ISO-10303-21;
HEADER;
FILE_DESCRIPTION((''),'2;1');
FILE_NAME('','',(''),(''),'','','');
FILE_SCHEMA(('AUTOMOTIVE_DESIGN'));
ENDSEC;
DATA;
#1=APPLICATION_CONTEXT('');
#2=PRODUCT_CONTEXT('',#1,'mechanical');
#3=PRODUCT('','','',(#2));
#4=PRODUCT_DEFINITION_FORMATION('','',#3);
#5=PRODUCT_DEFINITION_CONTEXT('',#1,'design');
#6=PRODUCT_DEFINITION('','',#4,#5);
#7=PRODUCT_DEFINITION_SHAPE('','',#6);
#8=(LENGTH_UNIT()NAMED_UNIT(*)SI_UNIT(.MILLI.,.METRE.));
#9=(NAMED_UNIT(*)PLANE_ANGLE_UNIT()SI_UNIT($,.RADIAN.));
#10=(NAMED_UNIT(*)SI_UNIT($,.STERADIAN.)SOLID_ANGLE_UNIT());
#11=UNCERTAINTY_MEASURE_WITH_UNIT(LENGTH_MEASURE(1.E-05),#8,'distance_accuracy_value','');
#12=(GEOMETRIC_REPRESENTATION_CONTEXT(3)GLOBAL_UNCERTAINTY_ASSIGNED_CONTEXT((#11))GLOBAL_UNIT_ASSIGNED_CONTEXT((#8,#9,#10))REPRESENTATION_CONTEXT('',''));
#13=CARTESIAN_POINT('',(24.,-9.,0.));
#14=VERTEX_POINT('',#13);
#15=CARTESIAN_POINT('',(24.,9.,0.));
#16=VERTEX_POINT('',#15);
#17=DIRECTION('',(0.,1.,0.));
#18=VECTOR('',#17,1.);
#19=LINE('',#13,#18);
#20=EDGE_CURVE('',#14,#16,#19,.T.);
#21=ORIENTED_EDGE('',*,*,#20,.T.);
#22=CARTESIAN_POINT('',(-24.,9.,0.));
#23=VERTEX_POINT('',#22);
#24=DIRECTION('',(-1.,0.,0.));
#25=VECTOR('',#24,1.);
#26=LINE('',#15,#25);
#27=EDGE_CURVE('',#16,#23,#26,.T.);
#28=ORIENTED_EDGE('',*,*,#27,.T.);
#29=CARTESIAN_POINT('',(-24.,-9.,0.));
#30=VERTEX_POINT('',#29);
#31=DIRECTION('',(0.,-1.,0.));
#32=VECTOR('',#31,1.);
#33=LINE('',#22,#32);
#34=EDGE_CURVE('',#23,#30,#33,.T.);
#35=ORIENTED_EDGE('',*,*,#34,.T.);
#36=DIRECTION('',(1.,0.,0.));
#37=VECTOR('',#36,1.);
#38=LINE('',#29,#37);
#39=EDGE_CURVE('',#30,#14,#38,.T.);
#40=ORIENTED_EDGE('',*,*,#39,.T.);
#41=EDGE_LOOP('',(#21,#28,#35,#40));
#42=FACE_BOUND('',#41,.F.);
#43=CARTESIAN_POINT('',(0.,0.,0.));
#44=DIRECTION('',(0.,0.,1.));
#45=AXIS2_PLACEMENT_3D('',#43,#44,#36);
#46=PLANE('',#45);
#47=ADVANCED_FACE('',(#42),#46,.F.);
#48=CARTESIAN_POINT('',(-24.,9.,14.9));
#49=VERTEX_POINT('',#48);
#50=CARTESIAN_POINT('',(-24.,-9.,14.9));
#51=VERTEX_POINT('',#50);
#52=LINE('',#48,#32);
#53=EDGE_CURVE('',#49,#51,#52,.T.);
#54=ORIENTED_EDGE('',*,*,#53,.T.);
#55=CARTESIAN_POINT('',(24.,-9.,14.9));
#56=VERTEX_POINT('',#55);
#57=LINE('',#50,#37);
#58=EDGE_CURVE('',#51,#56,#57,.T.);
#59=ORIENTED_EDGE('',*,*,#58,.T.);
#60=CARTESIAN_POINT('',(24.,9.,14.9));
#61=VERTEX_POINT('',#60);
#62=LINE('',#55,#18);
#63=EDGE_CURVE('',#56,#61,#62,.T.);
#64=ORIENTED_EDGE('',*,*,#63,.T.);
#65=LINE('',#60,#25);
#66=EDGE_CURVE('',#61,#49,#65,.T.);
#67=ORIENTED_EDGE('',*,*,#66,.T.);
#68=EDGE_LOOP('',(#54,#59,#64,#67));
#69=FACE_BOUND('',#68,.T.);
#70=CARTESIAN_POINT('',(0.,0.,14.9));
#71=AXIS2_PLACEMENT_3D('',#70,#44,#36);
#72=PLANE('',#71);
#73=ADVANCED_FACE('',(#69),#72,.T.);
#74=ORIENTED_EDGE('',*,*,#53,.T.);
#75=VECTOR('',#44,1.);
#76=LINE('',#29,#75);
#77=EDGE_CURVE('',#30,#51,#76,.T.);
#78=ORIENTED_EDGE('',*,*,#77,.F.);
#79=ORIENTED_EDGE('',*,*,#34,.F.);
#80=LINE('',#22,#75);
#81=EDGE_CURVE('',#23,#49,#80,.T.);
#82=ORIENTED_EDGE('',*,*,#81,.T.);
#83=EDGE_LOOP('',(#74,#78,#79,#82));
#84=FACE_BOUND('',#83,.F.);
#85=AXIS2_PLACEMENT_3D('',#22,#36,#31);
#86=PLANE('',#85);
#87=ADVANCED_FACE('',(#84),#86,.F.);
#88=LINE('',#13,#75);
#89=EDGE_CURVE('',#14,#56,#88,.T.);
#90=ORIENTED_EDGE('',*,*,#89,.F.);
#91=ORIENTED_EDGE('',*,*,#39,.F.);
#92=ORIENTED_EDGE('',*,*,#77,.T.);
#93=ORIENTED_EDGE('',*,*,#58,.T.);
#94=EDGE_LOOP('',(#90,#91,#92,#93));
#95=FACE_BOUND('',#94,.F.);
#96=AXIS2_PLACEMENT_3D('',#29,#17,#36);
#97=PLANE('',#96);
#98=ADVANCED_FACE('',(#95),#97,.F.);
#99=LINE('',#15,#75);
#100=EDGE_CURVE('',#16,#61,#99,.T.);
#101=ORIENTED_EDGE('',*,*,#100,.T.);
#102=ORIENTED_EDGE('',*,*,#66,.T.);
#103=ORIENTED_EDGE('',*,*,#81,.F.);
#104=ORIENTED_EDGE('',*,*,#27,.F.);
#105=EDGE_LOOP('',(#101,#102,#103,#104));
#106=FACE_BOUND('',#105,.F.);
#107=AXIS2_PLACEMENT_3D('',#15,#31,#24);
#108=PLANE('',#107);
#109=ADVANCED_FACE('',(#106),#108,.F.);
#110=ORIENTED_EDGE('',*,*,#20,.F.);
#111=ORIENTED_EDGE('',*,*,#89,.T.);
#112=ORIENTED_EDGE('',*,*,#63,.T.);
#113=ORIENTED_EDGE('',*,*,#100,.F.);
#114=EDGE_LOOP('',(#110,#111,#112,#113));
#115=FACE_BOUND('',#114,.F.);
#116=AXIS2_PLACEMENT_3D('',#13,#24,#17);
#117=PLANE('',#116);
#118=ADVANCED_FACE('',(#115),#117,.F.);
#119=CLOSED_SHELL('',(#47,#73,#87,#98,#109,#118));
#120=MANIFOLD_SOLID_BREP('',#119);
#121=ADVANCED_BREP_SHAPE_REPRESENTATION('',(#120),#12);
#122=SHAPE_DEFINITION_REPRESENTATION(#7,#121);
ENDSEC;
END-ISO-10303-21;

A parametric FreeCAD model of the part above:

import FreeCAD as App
import Part
import Sketcher

V = App.Vector


def add_polygon(sketch, points):
    """Adds a closed chain of lines whose ends are joined by coincident constraints."""
    first, n = sketch.GeometryCount, len(points)
    for a, b in zip(points, points[1:] + points[:1]):
        sketch.addGeometry(Part.LineSegment(App.Vector(*a, 0), App.Vector(*b, 0)), False)
    for i in range(n):
        sketch.addConstraint(Sketcher.Constraint("Coincident", first + i, 2, first + (i + 1) % n, 1))

doc = App.newDocument("Part")
body = doc.addObject("PartDesign::Body", "Body")

sketch1 = body.newObject("Sketcher::SketchObject", "Sketch")
sketch1.AttachmentSupport = (doc.getObject("XY_Plane"), [""])
sketch1.MapMode = "FlatFace"
add_polygon(sketch1, [(-24, 9), (-24, -9), (24, -9), (24, 9)])
sketch1.addConstraint(Sketcher.Constraint("Vertical", 0))
sketch1.addConstraint(Sketcher.Constraint("Horizontal", 1))
sketch1.addConstraint(Sketcher.Constraint("Vertical", 2))
sketch1.addConstraint(Sketcher.Constraint("Horizontal", 3))
sketch1.addConstraint(Sketcher.Constraint("Symmetric", 0, 2, 2, 2, -1, 1))
sketch1.addConstraint(Sketcher.Constraint("DistanceX", 1, 1, 1, 2, 48.0))
sketch1.addConstraint(Sketcher.Constraint("DistanceY", 0, 2, 0, 1, 18.0))
pad1 = body.newObject("PartDesign::Pad", "Pad")
pad1.Profile = sketch1
pad1.Length = 14.9

doc.recompute()
